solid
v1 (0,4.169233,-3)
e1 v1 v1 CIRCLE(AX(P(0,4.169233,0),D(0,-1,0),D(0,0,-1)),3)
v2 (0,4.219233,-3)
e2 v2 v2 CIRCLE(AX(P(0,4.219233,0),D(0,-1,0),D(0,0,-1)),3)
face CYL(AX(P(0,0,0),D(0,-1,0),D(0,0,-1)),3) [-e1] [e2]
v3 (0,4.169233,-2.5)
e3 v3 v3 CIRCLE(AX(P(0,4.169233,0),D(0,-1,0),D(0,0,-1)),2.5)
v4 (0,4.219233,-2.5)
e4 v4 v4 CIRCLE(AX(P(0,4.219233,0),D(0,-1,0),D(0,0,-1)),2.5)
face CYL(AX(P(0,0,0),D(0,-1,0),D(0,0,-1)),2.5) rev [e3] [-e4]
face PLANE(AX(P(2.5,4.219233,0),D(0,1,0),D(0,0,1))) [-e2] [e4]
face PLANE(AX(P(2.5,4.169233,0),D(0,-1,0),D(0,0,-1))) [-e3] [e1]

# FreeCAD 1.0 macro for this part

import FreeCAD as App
import Part
import Sketcher
from FreeCAD import Vector

doc = App.newDocument("Part")
body = doc.addObject("PartDesign::Body", "Body")

sketch1 = body.newObject("Sketcher::SketchObject", "Sketch")
sketch1.AttachmentSupport = (doc.getObject("XY_Plane"), [""])
sketch1.MapMode = "FlatFace"
sketch1.addGeometry([
    Part.LineSegment(Vector(2.5, 4.219, 0), Vector(2.5, 4.169, 0)),
    Part.LineSegment(Vector(2.5, 4.169, 0), Vector(3, 4.169, 0)),
    Part.LineSegment(Vector(3, 4.169, 0), Vector(3, 4.219, 0)),
    Part.LineSegment(Vector(3, 4.219, 0), Vector(2.5, 4.219, 0)),
], False)
sketch1.addConstraint([
    Sketcher.Constraint("Coincident", 0, 2, 1, 1),
    Sketcher.Constraint("Coincident", 1, 2, 2, 1),
    Sketcher.Constraint("Coincident", 2, 2, 3, 1),
    Sketcher.Constraint("Coincident", 3, 2, 0, 1),
    Sketcher.Constraint("Vertical", 0),
    Sketcher.Constraint("Horizontal", 1),
    Sketcher.Constraint("Vertical", 2),
    Sketcher.Constraint("Horizontal", 3),
    Sketcher.Constraint("DistanceX", 1, 1, 1, 2, 0.5),
    Sketcher.Constraint("DistanceX", -1, 1, 1, 2, 3.0),
    Sketcher.Constraint("DistanceY", 0, 2, 0, 1, 0.05),
    Sketcher.Constraint("DistanceY", -1, 1, 0, 2, 4.169233),
])
revolution = body.newObject("PartDesign::Revolution", "Revolution")
revolution.Profile = sketch1
revolution.ReferenceAxis = (sketch1, ["V_Axis"])
revolution.Angle = 360

doc.recompute()
